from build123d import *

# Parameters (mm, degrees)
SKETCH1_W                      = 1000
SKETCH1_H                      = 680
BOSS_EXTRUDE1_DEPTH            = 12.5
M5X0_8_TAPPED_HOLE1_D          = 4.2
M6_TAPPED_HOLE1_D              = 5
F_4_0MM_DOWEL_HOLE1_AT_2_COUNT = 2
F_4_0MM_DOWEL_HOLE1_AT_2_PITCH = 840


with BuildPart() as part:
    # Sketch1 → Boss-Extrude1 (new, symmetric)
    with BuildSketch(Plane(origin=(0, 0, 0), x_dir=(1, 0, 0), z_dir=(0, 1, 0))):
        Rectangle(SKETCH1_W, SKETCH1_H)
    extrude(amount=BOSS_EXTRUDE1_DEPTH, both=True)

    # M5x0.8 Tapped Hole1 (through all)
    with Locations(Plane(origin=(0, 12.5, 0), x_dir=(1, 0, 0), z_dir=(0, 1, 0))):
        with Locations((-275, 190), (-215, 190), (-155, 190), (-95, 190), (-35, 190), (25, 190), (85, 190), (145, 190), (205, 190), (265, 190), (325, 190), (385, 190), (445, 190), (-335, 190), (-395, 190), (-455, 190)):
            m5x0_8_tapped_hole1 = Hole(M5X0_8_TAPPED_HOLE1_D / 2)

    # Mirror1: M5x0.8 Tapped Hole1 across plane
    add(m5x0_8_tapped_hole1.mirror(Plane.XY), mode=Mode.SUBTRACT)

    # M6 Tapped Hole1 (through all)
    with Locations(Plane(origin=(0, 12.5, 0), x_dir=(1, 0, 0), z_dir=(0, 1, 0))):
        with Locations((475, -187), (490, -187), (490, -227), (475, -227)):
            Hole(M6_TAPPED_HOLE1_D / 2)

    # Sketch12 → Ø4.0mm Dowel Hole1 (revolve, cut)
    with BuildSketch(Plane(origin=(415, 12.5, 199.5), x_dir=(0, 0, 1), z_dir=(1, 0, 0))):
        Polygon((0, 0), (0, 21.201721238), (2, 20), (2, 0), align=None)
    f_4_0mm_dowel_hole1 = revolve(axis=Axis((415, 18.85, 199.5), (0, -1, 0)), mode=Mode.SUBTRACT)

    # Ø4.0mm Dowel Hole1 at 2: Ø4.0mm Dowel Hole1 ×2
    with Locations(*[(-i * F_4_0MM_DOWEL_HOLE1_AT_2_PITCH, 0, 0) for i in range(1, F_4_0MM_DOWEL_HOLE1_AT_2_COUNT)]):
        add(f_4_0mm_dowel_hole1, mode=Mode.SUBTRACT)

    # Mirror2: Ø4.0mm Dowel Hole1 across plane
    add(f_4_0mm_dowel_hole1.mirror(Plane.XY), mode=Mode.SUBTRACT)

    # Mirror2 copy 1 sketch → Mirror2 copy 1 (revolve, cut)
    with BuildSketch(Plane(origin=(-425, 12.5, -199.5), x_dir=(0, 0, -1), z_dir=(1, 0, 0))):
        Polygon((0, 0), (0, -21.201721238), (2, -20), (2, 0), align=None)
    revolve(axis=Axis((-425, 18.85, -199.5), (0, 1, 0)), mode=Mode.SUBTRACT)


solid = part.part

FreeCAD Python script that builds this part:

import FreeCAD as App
import Part
import Sketcher
from FreeCAD import Vector
Q = App.Units.Quantity


def add_polygon(sketch, points):
    """Adds a closed chain of lines whose ends are joined by coincident constraints."""
    first, n = sketch.GeometryCount, len(points)
    for a, b in zip(points, points[1:] + points[:1]):
        sketch.addGeometry(Part.LineSegment(App.Vector(*a, 0), App.Vector(*b, 0)), False)
    for i in range(n):
        sketch.addConstraint(Sketcher.Constraint("Coincident", first + i, 2, first + (i + 1) % n, 1))

doc = App.newDocument("Part")
body = doc.addObject("PartDesign::Body", "Body")

# Sketch on XZ plane
sketch1 = body.newObject("Sketcher::SketchObject", "Sketch")
sketch1.AttachmentSupport = (doc.getObject("XZ_Plane"), [""])
sketch1.MapMode = "FlatFace"
add_polygon(sketch1, [(-500, -340), (-500, 340), (500, 340), (500, -340)])  # lines 0-3
sketch1.addConstraint(Sketcher.Constraint("Vertical", 0))
sketch1.addConstraint(Sketcher.Constraint("Horizontal", 1))
sketch1.addConstraint(Sketcher.Constraint("Vertical", 2))
sketch1.addConstraint(Sketcher.Constraint("Horizontal", 3))
sketch1.addConstraint(Sketcher.Constraint("Symmetric", 0, 2, 2, 2, -1, 1))
sketch1.addConstraint(Sketcher.Constraint("DistanceX", 1, 1, 1, 2, Q("1000 mm")))
sketch1.addConstraint(Sketcher.Constraint("DistanceY", 0, 1, 0, 2, Q("680 mm")))
pad1 = body.newObject("PartDesign::Pad", "Pad")
pad1.Profile = sketch1
pad1.Length = 25
pad1.Midplane = True

# Sketch on XZ plane
sketch2 = body.newObject("Sketcher::SketchObject", "Sketch001")
sketch2.AttachmentSupport = (doc.getObject("XZ_Plane"), [""])
sketch2.MapMode = "FlatFace"
sketch2.AttachmentOffset = App.Placement(Vector(0, 0, -12.5), App.Rotation())
sketch2.addGeometry(Part.Circle(Vector(-275, -190, 0), Vector(0, 0, 1), 2.1), False)
sketch2.addGeometry(Part.Circle(Vector(-215, -190, 0), Vector(0, 0, 1), 2.1), False)
sketch2.addGeometry(Part.Circle(Vector(-155, -190, 0), Vector(0, 0, 1), 2.1), False)
sketch2.addGeometry(Part.Circle(Vector(-95, -190, 0), Vector(0, 0, 1), 2.1), False)
sketch2.addGeometry(Part.Circle(Vector(-35, -190, 0), Vector(0, 0, 1), 2.1), False)
sketch2.addGeometry(Part.Circle(Vector(25, -190, 0), Vector(0, 0, 1), 2.1), False)
sketch2.addGeometry(Part.Circle(Vector(85, -190, 0), Vector(0, 0, 1), 2.1), False)
sketch2.addGeometry(Part.Circle(Vector(145, -190, 0), Vector(0, 0, 1), 2.1), False)
sketch2.addGeometry(Part.Circle(Vector(205, -190, 0), Vector(0, 0, 1), 2.1), False)
sketch2.addGeometry(Part.Circle(Vector(265, -190, 0), Vector(0, 0, 1), 2.1), False)
sketch2.addGeometry(Part.Circle(Vector(325, -190, 0), Vector(0, 0, 1), 2.1), False)
sketch2.addGeometry(Part.Circle(Vector(385, -190, 0), Vector(0, 0, 1), 2.1), False)
sketch2.addGeometry(Part.Circle(Vector(445, -190, 0), Vector(0, 0, 1), 2.1), False)
sketch2.addGeometry(Part.Circle(Vector(-335, -190, 0), Vector(0, 0, 1), 2.1), False)
sketch2.addGeometry(Part.Circle(Vector(-395, -190, 0), Vector(0, 0, 1), 2.1), False)
sketch2.addGeometry(Part.Circle(Vector(-455, -190, 0), Vector(0, 0, 1), 2.1), False)
sketch2.addConstraint(Sketcher.Constraint("Equal", 0, 1))
sketch2.addConstraint(Sketcher.Constraint("Equal", 1, 2))
sketch2.addConstraint(Sketcher.Constraint("Equal", 2, 3))
sketch2.addConstraint(Sketcher.Constraint("Equal", 3, 4))
sketch2.addConstraint(Sketcher.Constraint("Equal", 4, 5))
sketch2.addConstraint(Sketcher.Constraint("Equal", 5, 6))
sketch2.addConstraint(Sketcher.Constraint("Equal", 6, 7))
sketch2.addConstraint(Sketcher.Constraint("Equal", 7, 8))
sketch2.addConstraint(Sketcher.Constraint("Equal", 8, 9))
sketch2.addConstraint(Sketcher.Constraint("Equal", 9, 10))
sketch2.addConstraint(Sketcher.Constraint("Equal", 10, 11))
sketch2.addConstraint(Sketcher.Constraint("Equal", 11, 12))
sketch2.addConstraint(Sketcher.Constraint("Equal", 12, 13))
sketch2.addConstraint(Sketcher.Constraint("Equal", 13, 14))
sketch2.addConstraint(Sketcher.Constraint("Equal", 14, 15))
sketch2.addConstraint(Sketcher.Constraint("Horizontal", 0, 3, 1, 3))
sketch2.addConstraint(Sketcher.Constraint("Horizontal", 1, 3, 2, 3))
sketch2.addConstraint(Sketcher.Constraint("Horizontal", 2, 3, 3, 3))
sketch2.addConstraint(Sketcher.Constraint("Horizontal", 3, 3, 4, 3))
sketch2.addConstraint(Sketcher.Constraint("Horizontal", 4, 3, 5, 3))
sketch2.addConstraint(Sketcher.Constraint("Horizontal", 5, 3, 6, 3))
sketch2.addConstraint(Sketcher.Constraint("Horizontal", 6, 3, 7, 3))
sketch2.addConstraint(Sketcher.Constraint("Horizontal", 7, 3, 8, 3))
sketch2.addConstraint(Sketcher.Constraint("Horizontal", 8, 3, 9, 3))
sketch2.addConstraint(Sketcher.Constraint("Horizontal", 9, 3, 10, 3))
sketch2.addConstraint(Sketcher.Constraint("Horizontal", 10, 3, 11, 3))
sketch2.addConstraint(Sketcher.Constraint("Horizontal", 11, 3, 12, 3))
sketch2.addConstraint(Sketcher.Constraint("Horizontal", 12, 3, 13, 3))
sketch2.addConstraint(Sketcher.Constraint("Horizontal", 13, 3, 14, 3))
sketch2.addConstraint(Sketcher.Constraint("Horizontal", 14, 3, 15, 3))
sketch2.addConstraint(Sketcher.Constraint("Diameter", 0, Q("4.2 mm")))
sketch2.addConstraint(Sketcher.Constraint("DistanceX", 0, 3, -1, 1, Q("275 mm")))
sketch2.addConstraint(Sketcher.Constraint("DistanceY", 0, 3, -1, 1, Q("190 mm")))
sketch2.addConstraint(Sketcher.Constraint("DistanceX", 1, 3, -1, 1, Q("215 mm")))
sketch2.addConstraint(Sketcher.Constraint("DistanceX", 2, 3, -1, 1, Q("155 mm")))
sketch2.addConstraint(Sketcher.Constraint("DistanceX", 3, 3, -1, 1, Q("95 mm")))
sketch2.addConstraint(Sketcher.Constraint("DistanceX", 4, 3, -1, 1, Q("35 mm")))
sketch2.addConstraint(Sketcher.Constraint("DistanceX", -1, 1, 5, 3, Q("25 mm")))
sketch2.addConstraint(Sketcher.Constraint("DistanceX", -1, 1, 6, 3, Q("85 mm")))
sketch2.addConstraint(Sketcher.Constraint("DistanceX", -1, 1, 7, 3, Q("145 mm")))
sketch2.addConstraint(Sketcher.Constraint("DistanceX", -1, 1, 8, 3, Q("205 mm")))
sketch2.addConstraint(Sketcher.Constraint("DistanceX", -1, 1, 9, 3, Q("265 mm")))
sketch2.addConstraint(Sketcher.Constraint("DistanceX", -1, 1, 10, 3, Q("325 mm")))
sketch2.addConstraint(Sketcher.Constraint("DistanceX", -1, 1, 11, 3, Q("385 mm")))
sketch2.addConstraint(Sketcher.Constraint("DistanceX", -1, 1, 12, 3, Q("445 mm")))
sketch2.addConstraint(Sketcher.Constraint("DistanceX", 13, 3, -1, 1, Q("335 mm")))
sketch2.addConstraint(Sketcher.Constraint("DistanceX", 14, 3, -1, 1, Q("395 mm")))
sketch2.addConstraint(Sketcher.Constraint("DistanceX", 15, 3, -1, 1, Q("455 mm")))
doc.recompute()
hole = body.newObject("PartDesign::Hole", "Hole")
hole.Profile = sketch2
hole.ThreadType = "None"
hole.Diameter = 4.2
hole.DepthType = "ThroughAll"
hole.Reversed = True
doc.recompute()

mirrored = body.newObject("PartDesign::Mirrored", "Mirrored")
mirrored.Originals = [hole]
mirrored.MirrorPlane = (doc.getObject("XY_Plane"), [""])
body.Tip = mirrored

# Sketch on XZ plane
sketch3 = body.newObject("Sketcher::SketchObject", "Sketch002")
sketch3.AttachmentSupport = (doc.getObject("XZ_Plane"), [""])
sketch3.MapMode = "FlatFace"
sketch3.AttachmentOffset = App.Placement(Vector(0, 0, -12.5), App.Rotation())
sketch3.addGeometry(Part.Circle(Vector(475, 187, 0), Vector(0, 0, 1), 2.5), False)
sketch3.addGeometry(Part.Circle(Vector(490, 187, 0), Vector(0, 0, 1), 2.5), False)
sketch3.addGeometry(Part.Circle(Vector(490, 227, 0), Vector(0, 0, 1), 2.5), False)
sketch3.addGeometry(Part.Circle(Vector(475, 227, 0), Vector(0, 0, 1), 2.5), False)
sketch3.addConstraint(Sketcher.Constraint("Equal", 0, 1))
sketch3.addConstraint(Sketcher.Constraint("Equal", 1, 2))
sketch3.addConstraint(Sketcher.Constraint("Equal", 2, 3))
sketch3.addConstraint(Sketcher.Constraint("Horizontal", 0, 3, 1, 3))
sketch3.addConstraint(Sketcher.Constraint("Horizontal", 2, 3, 3, 3))
sketch3.addConstraint(Sketcher.Constraint("Vertical", 1, 3, 2, 3))
sketch3.addConstraint(Sketcher.Constraint("Vertical", 0, 3, 3, 3))
sketch3.addConstraint(Sketcher.Constraint("Diameter", 0, Q("5 mm")))
sketch3.addConstraint(Sketcher.Constraint("DistanceX", -1, 1, 0, 3, Q("475 mm")))
sketch3.addConstraint(Sketcher.Constraint("DistanceY", -1, 1, 0, 3, Q("187 mm")))
sketch3.addConstraint(Sketcher.Constraint("DistanceX", -1, 1, 1, 3, Q("490 mm")))
sketch3.addConstraint(Sketcher.Constraint("DistanceY", -1, 1, 2, 3, Q("227 mm")))
doc.recompute()
hole2 = body.newObject("PartDesign::Hole", "Hole001")
hole2.Profile = sketch3
hole2.ThreadType = "None"
hole2.Diameter = 5
hole2.DepthType = "ThroughAll"
hole2.Reversed = True

# Sketch on YZ plane
sketch4 = body.newObject("Sketcher::SketchObject", "Sketch003")
sketch4.AttachmentSupport = (doc.getObject("YZ_Plane"), [""])
sketch4.MapMode = "FlatFace"
sketch4.AttachmentOffset = App.Placement(Vector(0, 0, 415), App.Rotation())
add_polygon(sketch4, [(-8.7, 199.5), (12.5, 199.5), (12.5, 201.5), (-7.5, 201.5)])  # lines 0-3
sketch4.addGeometry(Part.LineSegment(Vector(12.5, 199.5, 0), Vector(-8.7, 199.5, 0)), True)  # axis
sketch4.addConstraint(Sketcher.Constraint("Horizontal", 0))
sketch4.addConstraint(Sketcher.Constraint("Vertical", 1))
sketch4.addConstraint(Sketcher.Constraint("Horizontal", 2))
sketch4.addConstraint(Sketcher.Constraint("Horizontal", 4))
sketch4.addConstraint(Sketcher.Constraint("Coincident", 4, 1, 0, 2))
sketch4.addConstraint(Sketcher.Constraint("Equal", 0, 4))
sketch4.addConstraint(Sketcher.Constraint("DistanceX", 2, 2, 2, 1, Q("20 mm")))
sketch4.addConstraint(Sketcher.Constraint("DistanceY", 1, 1, 1, 2, Q("2 mm")))
sketch4.addConstraint(Sketcher.Constraint("Angle", 3, Q("-121 deg")))
sketch4.addConstraint(Sketcher.Constraint("DistanceX", -1, 1, 0, 2, Q("12.5 mm")))
sketch4.addConstraint(Sketcher.Constraint("DistanceY", -1, 1, 0, 2, Q("199.5 mm")))
groove = body.newObject("PartDesign::Groove", "Groove")
groove.Profile = sketch4
groove.ReferenceAxis = (sketch4, ["Axis0"])
groove.Angle = 360
doc.recompute()

linearpattern = body.newObject("PartDesign::LinearPattern", "LinearPattern")
linearpattern.Originals = [groove]
linearpattern.Direction = (doc.getObject("X_Axis"), [""])
linearpattern.Mode = "offset"
linearpattern.Offset = 840
linearpattern.Occurrences = 2
linearpattern.Reversed = True
body.Tip = linearpattern
doc.recompute()

mirrored2 = body.newObject("PartDesign::Mirrored", "Mirrored001")
mirrored2.Originals = [groove]
mirrored2.MirrorPlane = (doc.getObject("XY_Plane"), [""])
body.Tip = mirrored2

# Sketch on YZ plane
sketch5 = body.newObject("Sketcher::SketchObject", "Sketch004")
sketch5.AttachmentSupport = (doc.getObject("YZ_Plane"), [""])
sketch5.MapMode = "FlatFace"
sketch5.AttachmentOffset = App.Placement(Vector(0, 0, -425), App.Rotation())
add_polygon(sketch5, [(12.5, -199.5), (-8.7, -199.5), (-7.5, -201.5), (12.5, -201.5)])  # lines 0-3
sketch5.addGeometry(Part.LineSegment(Vector(-8.7, -199.5, 0), Vector(12.5, -199.5, 0)), True)  # axis
sketch5.addConstraint(Sketcher.Constraint("Horizontal", 0))
sketch5.addConstraint(Sketcher.Constraint("Horizontal", 2))
sketch5.addConstraint(Sketcher.Constraint("Vertical", 3))
sketch5.addConstraint(Sketcher.Constraint("Horizontal", 4))
sketch5.addConstraint(Sketcher.Constraint("Coincident", 4, 1, 0, 2))
sketch5.addConstraint(Sketcher.Constraint("Vertical", 2, 2, 4, 2))
sketch5.addConstraint(Sketcher.Constraint("DistanceX", 2, 1, 2, 2, Q("20 mm")))
sketch5.addConstraint(Sketcher.Constraint("DistanceY", 3, 1, 3, 2, Q("2 mm")))
sketch5.addConstraint(Sketcher.Constraint("Angle", 1, Q("-59 deg")))
sketch5.addConstraint(Sketcher.Constraint("DistanceY", 0, 2, -1, 1, Q("199.5 mm")))
sketch5.addConstraint(Sketcher.Constraint("DistanceX", 1, 2, -1, 1, Q("7.5 mm")))
groove2 = body.newObject("PartDesign::Groove", "Groove001")
groove2.Profile = sketch5
groove2.ReferenceAxis = (sketch5, ["Axis0"])
groove2.Angle = 360

doc.recompute()
